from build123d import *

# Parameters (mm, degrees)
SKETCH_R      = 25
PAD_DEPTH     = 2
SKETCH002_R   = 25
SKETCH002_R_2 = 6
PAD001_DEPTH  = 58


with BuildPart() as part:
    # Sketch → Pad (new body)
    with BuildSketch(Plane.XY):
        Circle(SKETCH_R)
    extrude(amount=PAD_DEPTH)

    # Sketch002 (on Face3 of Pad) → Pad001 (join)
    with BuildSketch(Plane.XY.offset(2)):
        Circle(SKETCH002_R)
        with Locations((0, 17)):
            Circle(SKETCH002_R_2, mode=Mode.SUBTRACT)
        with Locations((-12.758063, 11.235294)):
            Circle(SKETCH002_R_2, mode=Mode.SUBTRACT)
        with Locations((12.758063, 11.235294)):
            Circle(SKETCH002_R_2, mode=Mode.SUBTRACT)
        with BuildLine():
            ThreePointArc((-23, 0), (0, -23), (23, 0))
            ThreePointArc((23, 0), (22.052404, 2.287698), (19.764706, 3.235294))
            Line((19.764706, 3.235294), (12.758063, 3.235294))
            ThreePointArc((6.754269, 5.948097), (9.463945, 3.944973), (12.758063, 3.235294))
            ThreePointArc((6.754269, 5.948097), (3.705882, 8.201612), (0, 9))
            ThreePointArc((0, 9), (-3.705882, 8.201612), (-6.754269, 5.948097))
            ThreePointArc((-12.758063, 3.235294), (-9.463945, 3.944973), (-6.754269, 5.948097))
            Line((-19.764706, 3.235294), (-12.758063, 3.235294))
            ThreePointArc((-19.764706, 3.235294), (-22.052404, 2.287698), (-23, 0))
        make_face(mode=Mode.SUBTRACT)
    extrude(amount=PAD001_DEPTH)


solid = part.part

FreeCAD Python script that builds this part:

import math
import FreeCAD as App
import Part
import Sketcher

V = App.Vector
Q = App.Units.Quantity

doc = App.newDocument("Part")
body = doc.addObject("PartDesign::Body", "Body")

# Sketch on XY plane
sketch1 = body.newObject("Sketcher::SketchObject", "Sketch")
sketch1.AttachmentSupport = (doc.getObject("XY_Plane"), [""])
sketch1.MapMode = "FlatFace"
sketch1.addGeometry(Part.Circle(V(0, 0, 0), V(0, 0, 1), 25), False)
sketch1.addConstraint([
    Sketcher.Constraint("Coincident", 0, 3, -1, 1),
    Sketcher.Constraint("Diameter", 0, Q("50 mm")),
])
pad1 = body.newObject("PartDesign::Pad", "Pad")
pad1.Profile = sketch1
pad1.Length = 2

# Sketch on XY plane
sketch2 = body.newObject("Sketcher::SketchObject", "Sketch001")
sketch2.AttachmentSupport = (doc.getObject("XY_Plane"), [""])
sketch2.MapMode = "FlatFace"
sketch2.AttachmentOffset = App.Placement(V(0, 0, 2), App.Rotation())
sketch2.addGeometry([
    Part.Circle(V(0, 0, 0), V(0, 0, 1), 25),  # 0
    Part.ArcOfCircle(Part.Circle(V(0, 0, 0), V(0, 0, 1), 23), math.radians(180), math.radians(360)),  # 1
    Part.ArcOfCircle(Part.Circle(V(-19.8, 0, 0), V(0, 0, 1), 3.2), math.radians(90), math.radians(180)),  # 2
    Part.LineSegment(V(-19.8, 3.2, 0), V(-12.8, 3.2, 0)),  # 3
    Part.ArcOfCircle(Part.Circle(V(-12.8, 11.2, 0), V(0, 0, 1), 8), math.radians(-90), math.radians(-41)),  # 4
    Part.ArcOfCircle(Part.Circle(V(0, 0, 0), V(0, 0, 1), 9), math.radians(90), math.radians(139)),  # 5
    Part.ArcOfCircle(Part.Circle(V(0, 0, 0), V(0, 0, 1), 9), math.radians(41), math.radians(90)),  # 6
    Part.ArcOfCircle(Part.Circle(V(12.8, 11.2, 0), V(0, 0, 1), 8), math.radians(-139), math.radians(-90)),  # 7
    Part.LineSegment(V(12.8, 3.2, 0), V(19.8, 3.2, 0)),  # 8
    Part.ArcOfCircle(Part.Circle(V(19.8, 0, 0), V(0, 0, 1), 3.2), math.radians(0), math.radians(90)),  # 9
    Part.Circle(V(-12.8, 11.2, 0), V(0, 0, 1), 6),  # 10
    Part.Circle(V(12.8, 11.2, 0), V(0, 0, 1), 6),  # 11
    Part.Circle(V(0, 17, 0), V(0, 0, 1), 6),  # 12
], False)
sketch2.addConstraint([
    Sketcher.Constraint("Tangent", 1, 1, 2, 2),
    Sketcher.Constraint("Tangent", 2, 1, 3, 1),
    Sketcher.Constraint("Tangent", 3, 2, 4, 1),
    Sketcher.Constraint("Tangent", 4, 2, 5, 2),
    Sketcher.Constraint("Tangent", 5, 1, 6, 2),
    Sketcher.Constraint("Tangent", 6, 1, 7, 1),
    Sketcher.Constraint("Tangent", 7, 2, 8, 1),
    Sketcher.Constraint("Tangent", 8, 2, 9, 2),
    Sketcher.Constraint("Tangent", 9, 1, 1, 2),
    Sketcher.Constraint("Horizontal", 3),
    Sketcher.Constraint("Horizontal", 8),
    Sketcher.Constraint("Coincident", 0, 3, -1, 1),
    Sketcher.Constraint("Coincident", 1, 3, -1, 1),
    Sketcher.Constraint("Coincident", 5, 3, -1, 1),
    Sketcher.Constraint("Coincident", 10, 3, 4, 3),
    Sketcher.Constraint("Coincident", 11, 3, 7, 3),
    Sketcher.Constraint("Equal", 5, 6),
    Sketcher.Constraint("Equal", 4, 7),
    Sketcher.Constraint("Equal", 2, 9),
    Sketcher.Constraint("Equal", 10, 11),
    Sketcher.Constraint("Equal", 11, 12),
    Sketcher.Constraint("PointOnObject", 2, 3, -1),
    Sketcher.Constraint("PointOnObject", 9, 3, -1),
    Sketcher.Constraint("PointOnObject", 12, 3, -2),
    Sketcher.Constraint("PointOnObject", 5, 1, -2),
    Sketcher.Constraint("Diameter", 0, Q("50 mm")),
    Sketcher.Constraint("Diameter", 10, Q("12 mm")),
    Sketcher.Constraint("Radius", 1, Q("23 mm")),
    Sketcher.Constraint("Radius", 5, Q("9.000002 mm")),
    Sketcher.Constraint("DistanceY", -1, 1, 12, 3, Q("17 mm")),
    Sketcher.Constraint("DistanceY", 2, 1, 10, 3, Q("8 mm")),
    Sketcher.Constraint("Radius", 2, Q("3.235295 mm")),
])
pad2 = body.newObject("PartDesign::Pad", "Pad001")
pad2.Profile = sketch2
pad2.Length = 58

doc.recompute()
